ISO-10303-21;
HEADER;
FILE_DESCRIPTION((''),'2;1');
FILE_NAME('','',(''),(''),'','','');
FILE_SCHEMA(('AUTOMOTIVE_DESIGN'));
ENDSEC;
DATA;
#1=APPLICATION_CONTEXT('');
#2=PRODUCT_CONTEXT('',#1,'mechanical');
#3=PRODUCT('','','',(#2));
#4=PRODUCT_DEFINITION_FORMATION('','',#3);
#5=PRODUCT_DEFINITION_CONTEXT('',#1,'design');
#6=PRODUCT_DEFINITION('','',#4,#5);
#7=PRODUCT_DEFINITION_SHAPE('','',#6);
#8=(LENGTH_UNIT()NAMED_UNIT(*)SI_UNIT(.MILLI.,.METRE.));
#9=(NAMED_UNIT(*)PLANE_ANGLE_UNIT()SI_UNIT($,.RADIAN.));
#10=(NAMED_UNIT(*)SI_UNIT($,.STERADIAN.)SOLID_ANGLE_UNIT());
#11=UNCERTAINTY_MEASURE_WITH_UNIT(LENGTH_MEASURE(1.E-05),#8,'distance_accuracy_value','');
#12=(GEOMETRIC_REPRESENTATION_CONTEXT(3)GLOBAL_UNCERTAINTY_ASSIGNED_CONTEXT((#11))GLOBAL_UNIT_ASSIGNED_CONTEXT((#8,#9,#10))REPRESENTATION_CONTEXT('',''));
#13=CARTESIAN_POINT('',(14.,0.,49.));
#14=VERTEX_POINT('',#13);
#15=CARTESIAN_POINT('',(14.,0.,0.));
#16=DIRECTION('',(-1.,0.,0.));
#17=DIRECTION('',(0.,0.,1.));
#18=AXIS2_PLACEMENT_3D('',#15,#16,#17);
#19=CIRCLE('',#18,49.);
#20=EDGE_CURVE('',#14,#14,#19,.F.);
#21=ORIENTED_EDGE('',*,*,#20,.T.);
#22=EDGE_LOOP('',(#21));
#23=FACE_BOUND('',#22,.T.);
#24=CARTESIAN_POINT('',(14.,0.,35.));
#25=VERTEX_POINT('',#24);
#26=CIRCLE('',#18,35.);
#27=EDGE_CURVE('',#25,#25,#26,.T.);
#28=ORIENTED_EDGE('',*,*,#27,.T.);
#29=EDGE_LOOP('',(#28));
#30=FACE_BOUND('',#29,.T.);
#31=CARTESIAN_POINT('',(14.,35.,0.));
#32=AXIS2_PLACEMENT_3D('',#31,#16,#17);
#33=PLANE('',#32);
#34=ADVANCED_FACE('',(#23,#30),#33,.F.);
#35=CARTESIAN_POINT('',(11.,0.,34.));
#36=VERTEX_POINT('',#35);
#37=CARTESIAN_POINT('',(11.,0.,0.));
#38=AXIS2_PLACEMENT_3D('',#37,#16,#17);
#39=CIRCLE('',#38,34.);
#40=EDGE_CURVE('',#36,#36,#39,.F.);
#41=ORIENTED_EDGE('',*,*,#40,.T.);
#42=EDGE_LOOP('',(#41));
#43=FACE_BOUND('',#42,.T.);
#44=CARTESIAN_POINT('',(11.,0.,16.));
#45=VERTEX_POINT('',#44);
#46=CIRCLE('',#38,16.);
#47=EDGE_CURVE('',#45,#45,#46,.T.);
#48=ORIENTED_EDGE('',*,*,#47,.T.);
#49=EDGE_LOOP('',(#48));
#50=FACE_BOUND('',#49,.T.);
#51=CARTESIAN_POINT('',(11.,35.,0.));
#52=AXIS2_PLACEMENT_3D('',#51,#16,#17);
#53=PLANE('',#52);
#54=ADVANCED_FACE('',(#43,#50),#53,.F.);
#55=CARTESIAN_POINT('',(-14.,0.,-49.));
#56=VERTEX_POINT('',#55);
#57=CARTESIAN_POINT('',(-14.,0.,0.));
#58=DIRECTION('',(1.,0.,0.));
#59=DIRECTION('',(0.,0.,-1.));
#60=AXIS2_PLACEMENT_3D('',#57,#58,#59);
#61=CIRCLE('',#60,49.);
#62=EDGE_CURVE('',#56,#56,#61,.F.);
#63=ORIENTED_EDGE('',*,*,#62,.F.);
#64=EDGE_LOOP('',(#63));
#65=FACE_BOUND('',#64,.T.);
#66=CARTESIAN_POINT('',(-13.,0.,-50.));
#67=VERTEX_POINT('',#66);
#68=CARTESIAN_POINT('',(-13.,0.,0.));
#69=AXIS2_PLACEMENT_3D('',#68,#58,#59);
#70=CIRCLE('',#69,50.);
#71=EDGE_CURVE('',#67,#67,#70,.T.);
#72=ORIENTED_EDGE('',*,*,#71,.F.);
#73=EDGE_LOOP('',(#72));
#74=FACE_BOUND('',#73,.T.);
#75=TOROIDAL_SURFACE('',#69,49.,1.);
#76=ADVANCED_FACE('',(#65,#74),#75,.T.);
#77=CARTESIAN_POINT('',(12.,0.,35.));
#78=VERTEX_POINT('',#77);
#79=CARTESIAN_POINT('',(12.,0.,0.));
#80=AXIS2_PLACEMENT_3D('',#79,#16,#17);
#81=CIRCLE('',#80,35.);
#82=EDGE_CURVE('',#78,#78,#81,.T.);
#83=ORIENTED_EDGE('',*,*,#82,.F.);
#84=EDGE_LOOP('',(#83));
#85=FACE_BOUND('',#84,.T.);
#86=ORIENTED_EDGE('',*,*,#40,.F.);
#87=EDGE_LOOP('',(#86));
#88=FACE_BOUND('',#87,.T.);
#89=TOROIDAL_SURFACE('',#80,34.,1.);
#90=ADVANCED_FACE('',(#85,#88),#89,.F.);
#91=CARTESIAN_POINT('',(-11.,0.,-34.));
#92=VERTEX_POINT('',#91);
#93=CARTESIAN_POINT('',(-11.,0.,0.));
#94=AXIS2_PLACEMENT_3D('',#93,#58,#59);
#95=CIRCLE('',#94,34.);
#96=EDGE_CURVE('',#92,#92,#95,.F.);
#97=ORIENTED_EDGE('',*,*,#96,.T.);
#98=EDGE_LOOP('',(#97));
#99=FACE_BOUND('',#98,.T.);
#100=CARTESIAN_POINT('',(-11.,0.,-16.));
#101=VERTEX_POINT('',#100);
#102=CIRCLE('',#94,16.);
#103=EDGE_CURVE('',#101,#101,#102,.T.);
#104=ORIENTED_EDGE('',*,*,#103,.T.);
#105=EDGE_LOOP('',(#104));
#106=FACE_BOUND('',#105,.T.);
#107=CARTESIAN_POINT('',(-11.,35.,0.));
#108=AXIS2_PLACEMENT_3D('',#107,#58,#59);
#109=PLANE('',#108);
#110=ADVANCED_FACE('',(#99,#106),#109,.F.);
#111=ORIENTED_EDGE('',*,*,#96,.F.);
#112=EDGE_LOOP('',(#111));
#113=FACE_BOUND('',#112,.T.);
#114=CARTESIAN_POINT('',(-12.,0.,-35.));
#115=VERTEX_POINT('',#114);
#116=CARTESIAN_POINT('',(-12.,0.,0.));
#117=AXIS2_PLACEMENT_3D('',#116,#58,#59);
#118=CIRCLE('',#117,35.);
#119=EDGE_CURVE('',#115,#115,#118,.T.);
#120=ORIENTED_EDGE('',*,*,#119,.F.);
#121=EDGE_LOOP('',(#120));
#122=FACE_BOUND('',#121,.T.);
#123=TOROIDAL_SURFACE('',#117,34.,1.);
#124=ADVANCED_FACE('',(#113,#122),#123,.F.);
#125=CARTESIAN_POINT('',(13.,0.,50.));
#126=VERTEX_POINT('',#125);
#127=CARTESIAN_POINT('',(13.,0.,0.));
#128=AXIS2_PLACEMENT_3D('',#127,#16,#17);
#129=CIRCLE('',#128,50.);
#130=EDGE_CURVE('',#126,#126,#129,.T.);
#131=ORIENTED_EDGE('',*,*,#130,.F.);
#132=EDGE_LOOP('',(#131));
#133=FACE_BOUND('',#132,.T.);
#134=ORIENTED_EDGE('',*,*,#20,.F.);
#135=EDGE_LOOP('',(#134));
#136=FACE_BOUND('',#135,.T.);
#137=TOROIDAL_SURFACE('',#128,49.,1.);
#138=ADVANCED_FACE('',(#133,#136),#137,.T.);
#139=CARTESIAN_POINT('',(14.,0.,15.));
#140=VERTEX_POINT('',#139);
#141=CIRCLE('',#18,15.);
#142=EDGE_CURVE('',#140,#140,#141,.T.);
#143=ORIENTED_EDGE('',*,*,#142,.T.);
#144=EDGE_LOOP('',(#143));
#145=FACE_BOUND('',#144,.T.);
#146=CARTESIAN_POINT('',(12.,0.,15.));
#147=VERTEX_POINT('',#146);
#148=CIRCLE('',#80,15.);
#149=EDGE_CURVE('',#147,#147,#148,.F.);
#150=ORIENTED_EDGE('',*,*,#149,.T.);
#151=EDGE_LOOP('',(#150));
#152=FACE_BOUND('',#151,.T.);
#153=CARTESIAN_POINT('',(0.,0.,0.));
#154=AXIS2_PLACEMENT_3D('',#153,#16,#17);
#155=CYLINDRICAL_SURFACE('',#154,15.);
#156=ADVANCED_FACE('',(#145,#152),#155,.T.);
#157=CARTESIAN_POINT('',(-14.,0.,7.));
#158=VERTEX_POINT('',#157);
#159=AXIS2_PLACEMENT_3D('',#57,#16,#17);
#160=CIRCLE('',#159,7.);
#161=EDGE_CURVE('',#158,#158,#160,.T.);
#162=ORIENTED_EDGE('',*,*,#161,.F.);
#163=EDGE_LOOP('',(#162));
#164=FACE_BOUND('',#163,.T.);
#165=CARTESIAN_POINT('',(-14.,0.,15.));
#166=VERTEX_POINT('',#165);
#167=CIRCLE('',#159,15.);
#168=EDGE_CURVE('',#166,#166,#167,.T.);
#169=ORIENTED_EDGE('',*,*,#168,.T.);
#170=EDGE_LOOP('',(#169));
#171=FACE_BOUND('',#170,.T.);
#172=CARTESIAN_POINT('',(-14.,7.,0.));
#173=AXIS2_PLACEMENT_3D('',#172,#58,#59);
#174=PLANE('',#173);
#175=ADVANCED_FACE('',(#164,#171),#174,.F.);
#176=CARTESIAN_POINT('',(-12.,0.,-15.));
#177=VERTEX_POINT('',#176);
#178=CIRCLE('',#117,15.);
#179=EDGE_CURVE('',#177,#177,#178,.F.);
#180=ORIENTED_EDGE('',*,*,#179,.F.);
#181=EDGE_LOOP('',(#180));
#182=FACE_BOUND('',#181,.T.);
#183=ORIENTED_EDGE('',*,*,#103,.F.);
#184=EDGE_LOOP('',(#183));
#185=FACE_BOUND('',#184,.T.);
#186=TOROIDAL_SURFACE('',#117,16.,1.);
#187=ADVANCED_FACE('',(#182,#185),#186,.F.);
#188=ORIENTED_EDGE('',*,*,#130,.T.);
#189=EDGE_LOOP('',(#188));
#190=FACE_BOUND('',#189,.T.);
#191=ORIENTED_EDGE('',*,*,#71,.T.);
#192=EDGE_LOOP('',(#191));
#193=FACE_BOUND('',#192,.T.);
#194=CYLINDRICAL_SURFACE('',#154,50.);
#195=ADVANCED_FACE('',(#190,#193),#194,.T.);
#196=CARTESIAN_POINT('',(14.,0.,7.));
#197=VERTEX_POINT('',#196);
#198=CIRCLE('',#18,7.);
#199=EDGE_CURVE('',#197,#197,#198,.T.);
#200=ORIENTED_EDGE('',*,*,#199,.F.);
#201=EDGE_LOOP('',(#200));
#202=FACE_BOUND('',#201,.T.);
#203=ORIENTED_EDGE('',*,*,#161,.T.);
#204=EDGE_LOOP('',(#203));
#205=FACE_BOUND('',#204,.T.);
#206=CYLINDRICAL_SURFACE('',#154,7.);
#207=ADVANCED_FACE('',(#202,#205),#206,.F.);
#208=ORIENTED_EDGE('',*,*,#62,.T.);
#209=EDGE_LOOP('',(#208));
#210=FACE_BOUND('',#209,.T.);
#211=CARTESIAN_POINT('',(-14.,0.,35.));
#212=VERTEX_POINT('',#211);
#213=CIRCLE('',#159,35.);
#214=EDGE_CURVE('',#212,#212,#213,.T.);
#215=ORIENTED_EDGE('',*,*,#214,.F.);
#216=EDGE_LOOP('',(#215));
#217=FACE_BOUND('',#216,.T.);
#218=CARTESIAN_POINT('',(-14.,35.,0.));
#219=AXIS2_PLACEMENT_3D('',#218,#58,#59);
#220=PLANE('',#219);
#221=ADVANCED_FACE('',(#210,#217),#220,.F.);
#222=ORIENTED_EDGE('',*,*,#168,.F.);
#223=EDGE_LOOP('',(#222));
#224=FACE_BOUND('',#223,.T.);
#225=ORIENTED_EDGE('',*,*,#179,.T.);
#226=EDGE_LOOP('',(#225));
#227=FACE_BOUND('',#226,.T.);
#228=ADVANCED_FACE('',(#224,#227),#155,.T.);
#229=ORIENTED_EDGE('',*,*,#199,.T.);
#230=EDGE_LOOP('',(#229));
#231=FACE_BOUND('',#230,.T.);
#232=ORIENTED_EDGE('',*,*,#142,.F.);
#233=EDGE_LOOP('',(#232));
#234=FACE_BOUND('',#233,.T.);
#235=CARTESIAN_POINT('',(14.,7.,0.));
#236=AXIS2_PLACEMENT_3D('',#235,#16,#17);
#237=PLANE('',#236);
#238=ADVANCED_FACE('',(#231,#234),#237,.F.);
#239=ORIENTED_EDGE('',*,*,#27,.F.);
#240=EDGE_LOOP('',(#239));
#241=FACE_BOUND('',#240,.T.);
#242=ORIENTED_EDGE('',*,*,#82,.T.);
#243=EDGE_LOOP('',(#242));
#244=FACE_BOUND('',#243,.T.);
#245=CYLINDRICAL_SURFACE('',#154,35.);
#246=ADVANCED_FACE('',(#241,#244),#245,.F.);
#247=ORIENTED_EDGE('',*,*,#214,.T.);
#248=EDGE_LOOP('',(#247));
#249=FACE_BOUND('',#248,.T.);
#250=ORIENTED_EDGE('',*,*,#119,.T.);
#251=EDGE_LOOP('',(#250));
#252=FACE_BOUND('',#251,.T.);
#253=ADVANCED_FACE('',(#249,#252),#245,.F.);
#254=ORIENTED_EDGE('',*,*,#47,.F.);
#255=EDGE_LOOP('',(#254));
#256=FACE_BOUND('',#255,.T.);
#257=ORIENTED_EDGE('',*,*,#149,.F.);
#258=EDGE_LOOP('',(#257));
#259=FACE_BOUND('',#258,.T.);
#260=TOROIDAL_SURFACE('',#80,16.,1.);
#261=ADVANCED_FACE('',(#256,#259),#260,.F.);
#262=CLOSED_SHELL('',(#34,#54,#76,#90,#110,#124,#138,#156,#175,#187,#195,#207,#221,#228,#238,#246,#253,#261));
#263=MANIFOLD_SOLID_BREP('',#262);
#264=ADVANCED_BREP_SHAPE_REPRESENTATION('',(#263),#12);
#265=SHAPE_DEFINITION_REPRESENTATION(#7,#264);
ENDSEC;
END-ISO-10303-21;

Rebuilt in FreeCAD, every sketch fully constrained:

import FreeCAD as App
import Part
import Sketcher
from FreeCAD import Vector


def edges_at(feature, points):
    """Names of the edges that pass closest to the given points."""
    edges = feature.Shape.Edges
    near = lambda p: min(range(len(edges)), key=lambda i: edges[i].distToShape(Part.Vertex(*p))[0])
    return sorted({f"Edge{near(p) + 1}" for p in points})

doc = App.newDocument("Part")
body = doc.addObject("PartDesign::Body", "Body")

# Sketch on XY plane
sketch1 = body.newObject("Sketcher::SketchObject", "Sketch")
sketch1.AttachmentSupport = (doc.getObject("XY_Plane"), [""])
sketch1.MapMode = "FlatFace"
sketch1.addGeometry(Part.LineSegment(Vector(14, 7, 0), Vector(14, 15, 0)), False)
sketch1.addGeometry(Part.LineSegment(Vector(14, 15, 0), Vector(11, 15, 0)), False)
sketch1.addGeometry(Part.LineSegment(Vector(11, 15, 0), Vector(11, 35, 0)), False)
sketch1.addGeometry(Part.LineSegment(Vector(11, 35, 0), Vector(14, 35, 0)), False)
sketch1.addGeometry(Part.LineSegment(Vector(14, 35, 0), Vector(14, 50, 0)), False)
sketch1.addGeometry(Part.LineSegment(Vector(14, 50, 0), Vector(-14, 50, 0)), False)
sketch1.addGeometry(Part.LineSegment(Vector(-14, 50, 0), Vector(-14, 35, 0)), False)
sketch1.addGeometry(Part.LineSegment(Vector(-14, 35, 0), Vector(-11, 35, 0)), False)
sketch1.addGeometry(Part.LineSegment(Vector(-11, 35, 0), Vector(-11, 15, 0)), False)
sketch1.addGeometry(Part.LineSegment(Vector(-11, 15, 0), Vector(-14, 15, 0)), False)
sketch1.addGeometry(Part.LineSegment(Vector(-14, 15, 0), Vector(-14, 7, 0)), False)
sketch1.addGeometry(Part.LineSegment(Vector(-14, 7, 0), Vector(14, 7, 0)), False)
sketch1.addConstraint(Sketcher.Constraint("Coincident", 0, 2, 1, 1))
sketch1.addConstraint(Sketcher.Constraint("Coincident", 1, 2, 2, 1))
sketch1.addConstraint(Sketcher.Constraint("Coincident", 2, 2, 3, 1))
sketch1.addConstraint(Sketcher.Constraint("Coincident", 3, 2, 4, 1))
sketch1.addConstraint(Sketcher.Constraint("Coincident", 4, 2, 5, 1))
sketch1.addConstraint(Sketcher.Constraint("Coincident", 5, 2, 6, 1))
sketch1.addConstraint(Sketcher.Constraint("Coincident", 6, 2, 7, 1))
sketch1.addConstraint(Sketcher.Constraint("Coincident", 7, 2, 8, 1))
sketch1.addConstraint(Sketcher.Constraint("Coincident", 8, 2, 9, 1))
sketch1.addConstraint(Sketcher.Constraint("Coincident", 9, 2, 10, 1))
sketch1.addConstraint(Sketcher.Constraint("Coincident", 10, 2, 11, 1))
sketch1.addConstraint(Sketcher.Constraint("Coincident", 11, 2, 0, 1))
sketch1.addConstraint(Sketcher.Constraint("Vertical", 0))
sketch1.addConstraint(Sketcher.Constraint("Horizontal", 1))
sketch1.addConstraint(Sketcher.Constraint("Vertical", 2))
sketch1.addConstraint(Sketcher.Constraint("Horizontal", 3))
sketch1.addConstraint(Sketcher.Constraint("Vertical", 4))
sketch1.addConstraint(Sketcher.Constraint("Horizontal", 5))
sketch1.addConstraint(Sketcher.Constraint("Vertical", 6))
sketch1.addConstraint(Sketcher.Constraint("Horizontal", 7))
sketch1.addConstraint(Sketcher.Constraint("Vertical", 8))
sketch1.addConstraint(Sketcher.Constraint("Horizontal", 9))
sketch1.addConstraint(Sketcher.Constraint("Vertical", 10))
sketch1.addConstraint(Sketcher.Constraint("Horizontal", 11))
sketch1.addConstraint(Sketcher.Constraint("Symmetric", 3, 2, 6, 2, -2))
sketch1.addConstraint(Sketcher.Constraint("Symmetric", 1, 2, 8, 2, -2))
sketch1.addConstraint(Sketcher.Constraint("Vertical", 0, 2, 3, 2))
sketch1.addConstraint(Sketcher.Constraint("Vertical", 6, 2, 9, 2))
sketch1.addConstraint(Sketcher.Constraint("DistanceX", 1, 2, 1, 1, 3.0))
sketch1.addConstraint(Sketcher.Constraint("DistanceX", 5, 2, 5, 1, 28.0))
sketch1.addConstraint(Sketcher.Constraint("DistanceY", 0, 1, 0, 2, 8.0))
sketch1.addConstraint(Sketcher.Constraint("DistanceY", 2, 1, 2, 2, 20.0))
sketch1.addConstraint(Sketcher.Constraint("DistanceY", 4, 1, 4, 2, 15.0))
sketch1.addConstraint(Sketcher.Constraint("DistanceY", -1, 1, 0, 2, 15.0))
revolution = body.newObject("PartDesign::Revolution", "Revolution")
revolution.Profile = sketch1
revolution.ReferenceAxis = (sketch1, ["H_Axis"])
revolution.Angle = 360
doc.recompute()

fillet = body.newObject("PartDesign::Fillet", "Fillet")
fillet.Base = (revolution, edges_at(revolution, [
    (-11, -15, 0),
    (-11, -35, 0),
    (-14, -50, 0),
    (14, -50, 0),
    (11, -35, 0),
    (11, -15, 0),
]))
fillet.Radius = 1

doc.recompute()
